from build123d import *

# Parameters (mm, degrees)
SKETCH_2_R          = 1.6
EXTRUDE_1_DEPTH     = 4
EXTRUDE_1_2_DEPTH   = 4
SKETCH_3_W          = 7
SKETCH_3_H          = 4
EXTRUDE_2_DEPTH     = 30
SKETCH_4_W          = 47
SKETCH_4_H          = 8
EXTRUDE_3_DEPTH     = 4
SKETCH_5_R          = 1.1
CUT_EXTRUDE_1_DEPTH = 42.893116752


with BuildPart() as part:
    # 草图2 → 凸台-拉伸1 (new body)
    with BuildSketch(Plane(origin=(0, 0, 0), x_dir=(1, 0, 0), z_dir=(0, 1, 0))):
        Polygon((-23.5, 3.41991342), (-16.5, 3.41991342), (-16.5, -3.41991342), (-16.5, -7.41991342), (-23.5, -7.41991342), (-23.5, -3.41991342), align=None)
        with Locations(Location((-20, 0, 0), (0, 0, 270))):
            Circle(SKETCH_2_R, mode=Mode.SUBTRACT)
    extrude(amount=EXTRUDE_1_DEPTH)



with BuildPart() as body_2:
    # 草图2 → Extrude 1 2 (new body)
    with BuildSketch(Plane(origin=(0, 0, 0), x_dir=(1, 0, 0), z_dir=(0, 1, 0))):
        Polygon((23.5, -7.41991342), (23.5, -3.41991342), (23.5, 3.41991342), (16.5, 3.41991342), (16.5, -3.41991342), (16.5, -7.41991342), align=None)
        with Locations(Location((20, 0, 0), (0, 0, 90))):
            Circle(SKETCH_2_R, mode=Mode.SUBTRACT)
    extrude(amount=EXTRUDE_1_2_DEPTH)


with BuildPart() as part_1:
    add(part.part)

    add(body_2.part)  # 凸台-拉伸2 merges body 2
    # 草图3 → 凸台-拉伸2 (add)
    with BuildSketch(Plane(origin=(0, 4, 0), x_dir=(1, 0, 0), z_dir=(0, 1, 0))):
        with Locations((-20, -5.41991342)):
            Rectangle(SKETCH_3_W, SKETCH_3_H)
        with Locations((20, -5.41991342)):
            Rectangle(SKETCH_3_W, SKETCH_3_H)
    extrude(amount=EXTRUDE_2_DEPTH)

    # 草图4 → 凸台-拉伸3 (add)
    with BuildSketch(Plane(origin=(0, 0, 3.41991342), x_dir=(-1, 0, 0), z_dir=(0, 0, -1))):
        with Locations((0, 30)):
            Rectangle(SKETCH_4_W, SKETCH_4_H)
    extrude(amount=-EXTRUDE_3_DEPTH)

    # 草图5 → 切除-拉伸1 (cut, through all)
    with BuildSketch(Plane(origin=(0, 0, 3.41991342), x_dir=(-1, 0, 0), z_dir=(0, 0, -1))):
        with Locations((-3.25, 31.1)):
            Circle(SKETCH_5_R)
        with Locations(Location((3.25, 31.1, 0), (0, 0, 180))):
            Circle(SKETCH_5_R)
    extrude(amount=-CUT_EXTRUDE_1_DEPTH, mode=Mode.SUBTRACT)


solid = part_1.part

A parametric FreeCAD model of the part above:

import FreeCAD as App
import Part
import Sketcher

doc = App.newDocument("Part")
params = doc.addObject("Spreadsheet::Sheet", "Params")
for row, (alias, value) in enumerate([
    ("sketch1_diameter", "3.2 mm"),
    ("sketch1_width", "7 mm"),
    ("pad1_length", "4 mm"),
    ("sketch2_diameter", "3.2 mm"),
    ("sketch2_width", "7 mm"),
    ("pad2_length", "4 mm"),
    ("sketch3_width", "7 mm"),
    ("sketch3_height", "4 mm"),
    ("pad3_length", "30 mm"),
    ("sketch4_width", "47 mm"),
    ("sketch4_height", "8 mm"),
    ("pad4_length", "4 mm"),
    ("sketch5_diameter", "2.2 mm"),
], start=1):
    params.set(f"A{row}", alias)
    params.set(f"B{row}", "=" + value)
    params.setAlias(f"B{row}", alias)

body = doc.addObject("PartDesign::Body", "Body")

# Sketch on XZ plane
sketch1 = doc.addObject("Sketcher::SketchObject", "Sketch")
body.addObject(sketch1)
sketch1.AttachmentSupport = (doc.XZ_Plane, [""])
sketch1.MapMode = "FlatFace"
sketch1.addGeometry([
    Part.LineSegment(App.Vector(-16.5, -3.419913, 0), App.Vector(-23.5, -3.419913, 0)),  # 0
    Part.LineSegment(App.Vector(-23.5, -3.419913, 0), App.Vector(-23.5, 7.419913, 0)),  # 1
    Part.LineSegment(App.Vector(-23.5, 7.419913, 0), App.Vector(-16.5, 7.419913, 0)),  # 2
    Part.LineSegment(App.Vector(-16.5, 7.419913, 0), App.Vector(-16.5, -3.419913, 0)),  # 3
    Part.Circle(App.Vector(-20, 0, 0), App.Vector(0, 0, 1), 1.6),  # 4
], False)
sketch1.addConstraint([
    Sketcher.Constraint("Coincident", 0, 2, 1, 1),
    Sketcher.Constraint("Coincident", 1, 2, 2, 1),
    Sketcher.Constraint("Coincident", 2, 2, 3, 1),
    Sketcher.Constraint("Coincident", 3, 2, 0, 1),
    Sketcher.Constraint("Horizontal", 0),
    Sketcher.Constraint("Vertical", 1),
    Sketcher.Constraint("Horizontal", 2),
    Sketcher.Constraint("Vertical", 3),
    Sketcher.Constraint("PointOnObject", 4, 3, -1),
    Sketcher.Constraint("Diameter", 4, 3.2),
    Sketcher.Constraint("DistanceX", 0, 2, 0, 1, 7.0),
    Sketcher.Constraint("DistanceX", 4, 3, -1, 1, 20.0),
    Sketcher.Constraint("DistanceX", 0, 2, -1, 1, 23.5),
    Sketcher.Constraint("DistanceY", 1, 1, 1, 2, 10.839827),
    Sketcher.Constraint("DistanceY", 0, 2, -1, 1, 3.419913),
])
sketch1.setExpression("Constraints[9]", "Params.sketch1_diameter")
sketch1.setExpression("Constraints[10]", "Params.sketch1_width")
pad1 = doc.addObject("PartDesign::Pad", "Pad")
body.addObject(pad1)
pad1.Profile = sketch1
pad1.setExpression("Length", "Params.pad1_length")
pad1.Reversed = True
body2 = doc.addObject("PartDesign::Body", "Body001")

# Sketch on XZ plane
sketch2 = doc.addObject("Sketcher::SketchObject", "Sketch001")
body2.addObject(sketch2)
sketch2.AttachmentSupport = (doc.getObject("XZ_Plane001"), [""])
sketch2.MapMode = "FlatFace"
sketch2.addGeometry([
    Part.LineSegment(App.Vector(23.5, 7.419913, 0), App.Vector(23.5, -3.419913, 0)),  # 0
    Part.LineSegment(App.Vector(23.5, -3.419913, 0), App.Vector(16.5, -3.419913, 0)),  # 1
    Part.LineSegment(App.Vector(16.5, -3.419913, 0), App.Vector(16.5, 7.419913, 0)),  # 2
    Part.LineSegment(App.Vector(16.5, 7.419913, 0), App.Vector(23.5, 7.419913, 0)),  # 3
    Part.Circle(App.Vector(20, 0, 0), App.Vector(0, 0, 1), 1.6),  # 4
], False)
sketch2.addConstraint([
    Sketcher.Constraint("Coincident", 0, 2, 1, 1),
    Sketcher.Constraint("Coincident", 1, 2, 2, 1),
    Sketcher.Constraint("Coincident", 2, 2, 3, 1),
    Sketcher.Constraint("Coincident", 3, 2, 0, 1),
    Sketcher.Constraint("Vertical", 0),
    Sketcher.Constraint("Horizontal", 1),
    Sketcher.Constraint("Vertical", 2),
    Sketcher.Constraint("Horizontal", 3),
    Sketcher.Constraint("PointOnObject", 4, 3, -1),
    Sketcher.Constraint("Diameter", 4, 3.2),
    Sketcher.Constraint("DistanceX", 1, 2, 1, 1, 7.0),
    Sketcher.Constraint("DistanceX", -1, 1, 4, 3, 20.0),
    Sketcher.Constraint("DistanceX", -1, 1, 0, 2, 23.5),
    Sketcher.Constraint("DistanceY", 0, 2, 0, 1, 10.839827),
    Sketcher.Constraint("DistanceY", 0, 2, -1, 1, 3.419913),
])
sketch2.setExpression("Constraints[9]", "Params.sketch2_diameter")
sketch2.setExpression("Constraints[10]", "Params.sketch2_width")
pad2 = doc.addObject("PartDesign::Pad", "Pad001")
body2.addObject(pad2)
pad2.Profile = sketch2
pad2.setExpression("Length", "Params.pad2_length")
pad2.Reversed = True
body.AllowCompound = True
doc.recompute()

boolean = doc.addObject("PartDesign::Boolean", "Boolean")
body.addObject(boolean)
boolean.Type = "Fuse"
boolean.addObjects([body2])

# Sketch on XZ plane
sketch3 = doc.addObject("Sketcher::SketchObject", "Sketch002")
body.addObject(sketch3)
sketch3.AttachmentSupport = (doc.XZ_Plane, [""])
sketch3.MapMode = "FlatFace"
sketch3.AttachmentOffset = App.Placement(App.Vector(0, 0, -4), App.Rotation())
sketch3.addGeometry([
    Part.LineSegment(App.Vector(-23.5, 3.419913, 0), App.Vector(-23.5, 7.419913, 0)),  # 0
    Part.LineSegment(App.Vector(-23.5, 7.419913, 0), App.Vector(-16.5, 7.419913, 0)),  # 1
    Part.LineSegment(App.Vector(-16.5, 7.419913, 0), App.Vector(-16.5, 3.419913, 0)),  # 2
    Part.LineSegment(App.Vector(-16.5, 3.419913, 0), App.Vector(-23.5, 3.419913, 0)),  # 3
    Part.LineSegment(App.Vector(16.5, 3.419913, 0), App.Vector(16.5, 7.419913, 0)),  # 4
    Part.LineSegment(App.Vector(16.5, 7.419913, 0), App.Vector(23.5, 7.419913, 0)),  # 5
    Part.LineSegment(App.Vector(23.5, 7.419913, 0), App.Vector(23.5, 3.419913, 0)),  # 6
    Part.LineSegment(App.Vector(23.5, 3.419913, 0), App.Vector(16.5, 3.419913, 0)),  # 7
], False)
sketch3.addConstraint([
    Sketcher.Constraint("Coincident", 0, 2, 1, 1),
    Sketcher.Constraint("Coincident", 1, 2, 2, 1),
    Sketcher.Constraint("Coincident", 2, 2, 3, 1),
    Sketcher.Constraint("Coincident", 3, 2, 0, 1),
    Sketcher.Constraint("Coincident", 4, 2, 5, 1),
    Sketcher.Constraint("Coincident", 5, 2, 6, 1),
    Sketcher.Constraint("Coincident", 6, 2, 7, 1),
    Sketcher.Constraint("Coincident", 7, 2, 4, 1),
    Sketcher.Constraint("Vertical", 0),
    Sketcher.Constraint("Horizontal", 1),
    Sketcher.Constraint("Vertical", 2),
    Sketcher.Constraint("Horizontal", 3),
    Sketcher.Constraint("Vertical", 4),
    Sketcher.Constraint("Horizontal", 5),
    Sketcher.Constraint("Vertical", 6),
    Sketcher.Constraint("Horizontal", 7),
    Sketcher.Constraint("Symmetric", 1, 2, 4, 2, -2),
    Sketcher.Constraint("Symmetric", 3, 2, 6, 2, -2),
    Sketcher.Constraint("DistanceX", 1, 1, 1, 2, 7.0),
    Sketcher.Constraint("DistanceY", 0, 1, 0, 2, 4.0),
    Sketcher.Constraint("DistanceX", 1, 2, 4, 2, 33.0),
    Sketcher.Constraint("DistanceY", -1, 1, 0, 2, 7.419913),
])
sketch3.setExpression("Constraints[18]", "Params.sketch3_width")
sketch3.setExpression("Constraints[19]", "Params.sketch3_height")
pad3 = doc.addObject("PartDesign::Pad", "Pad002")
body.addObject(pad3)
pad3.Profile = sketch3
pad3.setExpression("Length", "Params.pad3_length")
pad3.Reversed = True

# Sketch on XY plane
sketch4 = doc.addObject("Sketcher::SketchObject", "Sketch003")
body.addObject(sketch4)
sketch4.AttachmentSupport = (doc.XY_Plane, [""])
sketch4.MapMode = "FlatFace"
sketch4.AttachmentOffset = App.Placement(App.Vector(0, 0, 3.419913), App.Rotation())
sketch4.addGeometry([
    Part.LineSegment(App.Vector(23.5, 34, 0), App.Vector(23.5, 26, 0)),
    Part.LineSegment(App.Vector(23.5, 26, 0), App.Vector(-23.5, 26, 0)),
    Part.LineSegment(App.Vector(-23.5, 26, 0), App.Vector(-23.5, 34, 0)),
    Part.LineSegment(App.Vector(-23.5, 34, 0), App.Vector(23.5, 34, 0)),
], False)
sketch4.addConstraint([
    Sketcher.Constraint("Coincident", 0, 2, 1, 1),
    Sketcher.Constraint("Coincident", 1, 2, 2, 1),
    Sketcher.Constraint("Coincident", 2, 2, 3, 1),
    Sketcher.Constraint("Coincident", 3, 2, 0, 1),
    Sketcher.Constraint("Vertical", 0),
    Sketcher.Constraint("Horizontal", 1),
    Sketcher.Constraint("Vertical", 2),
    Sketcher.Constraint("Horizontal", 3),
    Sketcher.Constraint("DistanceX", 1, 2, 1, 1, 47.0),
    Sketcher.Constraint("DistanceY", 0, 2, 0, 1, 8.0),
    Sketcher.Constraint("DistanceY", -1, 1, 0, 2, 26.0),
    Sketcher.Constraint("DistanceX", -1, 1, 0, 2, 23.5),
])
sketch4.setExpression("Constraints[8]", "Params.sketch4_width")
sketch4.setExpression("Constraints[9]", "Params.sketch4_height")
pad4 = doc.addObject("PartDesign::Pad", "Pad003")
body.addObject(pad4)
pad4.Profile = sketch4
pad4.setExpression("Length", "Params.pad4_length")

# Sketch on XY plane
sketch5 = doc.addObject("Sketcher::SketchObject", "Sketch004")
body.addObject(sketch5)
sketch5.AttachmentSupport = (doc.XY_Plane, [""])
sketch5.MapMode = "FlatFace"
sketch5.AttachmentOffset = App.Placement(App.Vector(0, 0, 3.419913), App.Rotation())
sketch5.addGeometry([
    Part.Circle(App.Vector(3.25, 31.1, 0), App.Vector(0, 0, 1), 1.1),
    Part.Circle(App.Vector(-3.25, 31.1, 0), App.Vector(0, 0, 1), 1.1),
], False)
sketch5.addConstraint([
    Sketcher.Constraint("Equal", 0, 1),
    Sketcher.Constraint("Symmetric", 0, 3, 1, 3, -2),
    Sketcher.Constraint("Diameter", 0, 2.2),
    Sketcher.Constraint("DistanceY", -1, 1, 0, 3, 31.1),
    Sketcher.Constraint("DistanceX", 1, 3, 0, 3, 6.5),
])
sketch5.setExpression("Constraints[2]", "Params.sketch5_diameter")
pocket1 = doc.addObject("PartDesign::Pocket", "Pocket")
body.addObject(pocket1)
pocket1.Profile = sketch5
pocket1.Type = "ThroughAll"
pocket1.Reversed = True

doc.recompute()
